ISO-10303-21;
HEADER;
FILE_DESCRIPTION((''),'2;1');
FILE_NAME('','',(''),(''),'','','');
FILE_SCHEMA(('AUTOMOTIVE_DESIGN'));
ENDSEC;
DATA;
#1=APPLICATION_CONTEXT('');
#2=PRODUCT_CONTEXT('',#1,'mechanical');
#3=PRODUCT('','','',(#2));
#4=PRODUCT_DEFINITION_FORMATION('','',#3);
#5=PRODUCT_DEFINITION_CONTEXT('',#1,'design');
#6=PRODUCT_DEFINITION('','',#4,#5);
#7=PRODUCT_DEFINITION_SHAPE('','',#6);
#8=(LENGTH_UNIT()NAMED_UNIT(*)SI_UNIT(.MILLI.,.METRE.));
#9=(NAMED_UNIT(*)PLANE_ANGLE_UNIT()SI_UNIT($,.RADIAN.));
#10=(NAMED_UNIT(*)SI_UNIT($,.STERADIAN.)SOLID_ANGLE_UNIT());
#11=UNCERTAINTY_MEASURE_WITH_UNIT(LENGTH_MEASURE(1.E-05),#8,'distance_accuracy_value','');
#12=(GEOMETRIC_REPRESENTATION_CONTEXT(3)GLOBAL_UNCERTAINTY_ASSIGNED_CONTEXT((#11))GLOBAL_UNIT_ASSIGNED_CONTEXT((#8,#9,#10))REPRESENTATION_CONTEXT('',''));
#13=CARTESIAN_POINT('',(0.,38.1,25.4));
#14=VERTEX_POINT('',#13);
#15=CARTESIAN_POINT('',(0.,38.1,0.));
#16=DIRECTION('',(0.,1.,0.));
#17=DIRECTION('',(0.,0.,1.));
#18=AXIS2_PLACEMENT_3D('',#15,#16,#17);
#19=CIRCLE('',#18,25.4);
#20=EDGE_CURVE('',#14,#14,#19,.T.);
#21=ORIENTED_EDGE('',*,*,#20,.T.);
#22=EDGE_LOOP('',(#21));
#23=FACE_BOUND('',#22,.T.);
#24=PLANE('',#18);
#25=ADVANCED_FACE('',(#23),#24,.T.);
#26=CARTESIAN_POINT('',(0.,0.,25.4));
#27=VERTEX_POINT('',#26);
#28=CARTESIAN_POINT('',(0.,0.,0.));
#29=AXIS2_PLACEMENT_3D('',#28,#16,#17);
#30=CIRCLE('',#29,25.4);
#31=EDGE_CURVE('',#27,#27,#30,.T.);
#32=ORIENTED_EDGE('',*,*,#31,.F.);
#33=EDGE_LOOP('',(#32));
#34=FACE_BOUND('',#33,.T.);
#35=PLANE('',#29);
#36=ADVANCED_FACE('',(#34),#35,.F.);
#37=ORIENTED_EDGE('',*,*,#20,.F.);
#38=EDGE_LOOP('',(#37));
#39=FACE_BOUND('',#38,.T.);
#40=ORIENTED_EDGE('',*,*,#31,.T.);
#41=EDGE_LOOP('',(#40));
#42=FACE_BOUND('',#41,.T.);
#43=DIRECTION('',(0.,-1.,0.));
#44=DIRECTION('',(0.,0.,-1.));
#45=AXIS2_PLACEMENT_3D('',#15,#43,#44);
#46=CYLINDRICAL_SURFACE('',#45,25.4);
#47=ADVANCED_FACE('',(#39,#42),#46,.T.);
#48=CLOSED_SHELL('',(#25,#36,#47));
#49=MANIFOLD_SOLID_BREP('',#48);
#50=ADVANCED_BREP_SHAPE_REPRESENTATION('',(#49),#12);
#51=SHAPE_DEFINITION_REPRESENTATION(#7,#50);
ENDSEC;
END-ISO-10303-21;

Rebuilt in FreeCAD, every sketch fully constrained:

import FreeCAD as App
import Part
import Sketcher
from FreeCAD import Vector
Q = App.Units.Quantity

doc = App.newDocument("Part")
body = doc.addObject("PartDesign::Body", "Body")

sketch1 = body.newObject("Sketcher::SketchObject", "Sketch")
sketch1.AttachmentSupport = (doc.getObject("XZ_Plane"), [""])
sketch1.MapMode = "FlatFace"
sketch1.addGeometry(Part.Circle(Vector(0, 0, 0), Vector(0, 0, 1), 25), False)
sketch1.addConstraint([
    Sketcher.Constraint("Coincident", 0, 3, -1, 1),
    Sketcher.Constraint("Diameter", 0, Q("2 in")),
])
pad1 = body.newObject("PartDesign::Pad", "Pad")
pad1.Profile = sketch1
pad1.Length = Q("1.5 in")
pad1.Reversed = True

doc.recompute()
